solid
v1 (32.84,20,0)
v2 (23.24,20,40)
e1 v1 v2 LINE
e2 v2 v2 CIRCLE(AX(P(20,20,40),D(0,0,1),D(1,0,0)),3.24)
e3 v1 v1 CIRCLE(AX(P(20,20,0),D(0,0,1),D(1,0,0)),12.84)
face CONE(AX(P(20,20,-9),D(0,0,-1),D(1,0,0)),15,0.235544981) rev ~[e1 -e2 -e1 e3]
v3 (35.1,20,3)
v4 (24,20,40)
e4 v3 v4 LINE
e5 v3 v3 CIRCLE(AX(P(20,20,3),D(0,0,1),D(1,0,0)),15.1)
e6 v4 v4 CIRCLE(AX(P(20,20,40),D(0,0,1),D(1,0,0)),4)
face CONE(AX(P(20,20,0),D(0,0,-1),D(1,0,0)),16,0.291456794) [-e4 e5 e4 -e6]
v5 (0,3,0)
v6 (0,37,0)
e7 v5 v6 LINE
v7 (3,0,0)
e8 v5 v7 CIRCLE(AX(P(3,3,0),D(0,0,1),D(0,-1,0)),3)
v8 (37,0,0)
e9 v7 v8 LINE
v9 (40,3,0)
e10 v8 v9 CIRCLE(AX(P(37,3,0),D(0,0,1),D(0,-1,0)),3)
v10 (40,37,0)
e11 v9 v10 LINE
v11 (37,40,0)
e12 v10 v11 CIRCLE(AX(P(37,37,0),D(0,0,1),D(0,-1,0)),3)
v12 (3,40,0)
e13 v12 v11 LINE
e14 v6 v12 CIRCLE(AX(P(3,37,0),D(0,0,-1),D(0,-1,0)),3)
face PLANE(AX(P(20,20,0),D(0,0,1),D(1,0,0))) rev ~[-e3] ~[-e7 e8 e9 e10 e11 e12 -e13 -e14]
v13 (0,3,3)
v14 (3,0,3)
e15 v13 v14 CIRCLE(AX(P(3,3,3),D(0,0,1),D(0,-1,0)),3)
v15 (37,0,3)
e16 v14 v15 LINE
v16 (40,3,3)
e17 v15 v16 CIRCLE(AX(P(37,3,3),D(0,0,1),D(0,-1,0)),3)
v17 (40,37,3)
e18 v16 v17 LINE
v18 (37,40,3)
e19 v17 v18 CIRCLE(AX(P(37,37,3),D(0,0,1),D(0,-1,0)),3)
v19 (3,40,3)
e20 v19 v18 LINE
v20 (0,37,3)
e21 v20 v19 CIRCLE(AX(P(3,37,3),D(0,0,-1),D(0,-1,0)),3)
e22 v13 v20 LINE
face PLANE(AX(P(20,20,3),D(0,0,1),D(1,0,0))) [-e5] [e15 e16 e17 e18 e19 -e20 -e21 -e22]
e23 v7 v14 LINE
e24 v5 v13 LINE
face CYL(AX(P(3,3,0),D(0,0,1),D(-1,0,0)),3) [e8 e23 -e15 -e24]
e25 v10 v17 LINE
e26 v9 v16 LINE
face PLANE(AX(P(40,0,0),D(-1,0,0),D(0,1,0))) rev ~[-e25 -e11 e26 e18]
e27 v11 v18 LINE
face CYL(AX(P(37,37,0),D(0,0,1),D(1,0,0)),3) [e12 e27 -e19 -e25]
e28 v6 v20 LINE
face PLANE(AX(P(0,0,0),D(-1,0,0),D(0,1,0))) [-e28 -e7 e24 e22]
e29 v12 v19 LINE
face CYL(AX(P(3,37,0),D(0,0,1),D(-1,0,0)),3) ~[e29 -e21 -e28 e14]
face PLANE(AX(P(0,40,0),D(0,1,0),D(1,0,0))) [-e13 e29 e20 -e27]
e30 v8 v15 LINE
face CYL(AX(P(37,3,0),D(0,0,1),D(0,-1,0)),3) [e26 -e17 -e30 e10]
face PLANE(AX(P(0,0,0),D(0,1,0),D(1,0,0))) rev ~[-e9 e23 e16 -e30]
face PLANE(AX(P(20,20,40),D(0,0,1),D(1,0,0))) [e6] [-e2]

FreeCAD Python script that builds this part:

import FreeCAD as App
import Part
import Sketcher
from FreeCAD import Vector
Q = App.Units.Quantity


def edges_at(feature, points):
    """Names of the edges that pass closest to the given points."""
    edges = feature.Shape.Edges
    near = lambda p: min(range(len(edges)), key=lambda i: edges[i].distToShape(Part.Vertex(*p))[0])
    return sorted({f"Edge{near(p) + 1}" for p in points})


def add_polygon(sketch, points):
    """Adds a closed chain of lines whose ends are joined by coincident constraints."""
    first, n = sketch.GeometryCount, len(points)
    for a, b in zip(points, points[1:] + points[:1]):
        sketch.addGeometry(Part.LineSegment(App.Vector(*a, 0), App.Vector(*b, 0)), False)
    for i in range(n):
        sketch.addConstraint(Sketcher.Constraint("Coincident", first + i, 2, first + (i + 1) % n, 1))

doc = App.newDocument("Part")
body = doc.addObject("PartDesign::Body", "Body")

# Sketch on XZ plane
sketch1 = body.newObject("Sketcher::SketchObject", "Sketch")
sketch1.AttachmentSupport = (doc.getObject("XZ_Plane"), [""])
sketch1.MapMode = "FlatFace"
add_polygon(sketch1, [(0, -9), (15, -9), (3, 41), (0, 41)])  # lines 0-3
sketch1.addConstraint([
    Sketcher.Constraint("Horizontal", 0),
    Sketcher.Constraint("Horizontal", 2),
    Sketcher.Constraint("Vertical", 3),
    Sketcher.Constraint("PointOnObject", 2, 2, -2),
    Sketcher.Constraint("DistanceX", 0, 1, 0, 2, Q("15 mm")),
    Sketcher.Constraint("DistanceX", 2, 2, 2, 1, Q("3 mm")),
    Sketcher.Constraint("DistanceY", 3, 2, 3, 1, Q("50 mm")),
    Sketcher.Constraint("DistanceY", 0, 2, -1, 1, Q("9 mm")),
])
revolution = body.newObject("PartDesign::Revolution", "Revolution")
revolution.Profile = sketch1
revolution.ReferenceAxis = (sketch1, ["V_Axis"])
revolution.Angle = 360
body2 = doc.addObject("PartDesign::Body", "Body001")

# Sketch on XY plane
sketch2 = body2.newObject("Sketcher::SketchObject", "Sketch001")
sketch2.AttachmentSupport = (doc.getObject("XY_Plane001"), [""])
sketch2.MapMode = "FlatFace"
add_polygon(sketch2, [(-20, 20), (-20, -20), (20, -20), (20, 20)])  # lines 0-3
sketch2.addConstraint([
    Sketcher.Constraint("Vertical", 0),
    Sketcher.Constraint("Horizontal", 1),
    Sketcher.Constraint("Vertical", 2),
    Sketcher.Constraint("Horizontal", 3),
    Sketcher.Constraint("Symmetric", 0, 2, 2, 2, -1, 1),
    Sketcher.Constraint("Equal", 3, 0),
    Sketcher.Constraint("DistanceX", 1, 1, 1, 2, Q("40 mm")),
])
pad1 = body2.newObject("PartDesign::Pad", "Pad")
pad1.Profile = sketch2
pad1.Length = 3
doc.recompute()

fillet = body2.newObject("PartDesign::Fillet", "Fillet")
fillet.Base = (pad1, edges_at(pad1, [
    (-20, -20, 1.5),
    (-20, 20, 1.5),
    (20, -20, 1.5),
    (20, 20, 1.5),
]))
fillet.Radius = 3
body3 = doc.addObject("PartDesign::Body", "Body002")

# Sketch on XZ plane
sketch3 = body3.newObject("Sketcher::SketchObject", "Sketch002")
sketch3.AttachmentSupport = (doc.getObject("XZ_Plane002"), [""])
sketch3.MapMode = "FlatFace"
add_polygon(sketch3, [(0, 0), (16, 0), (4, 40), (0, 40)])  # lines 0-3
sketch3.addConstraint([
    Sketcher.Constraint("Horizontal", 0),
    Sketcher.Constraint("Horizontal", 2),
    Sketcher.Constraint("Vertical", 3),
    Sketcher.Constraint("Coincident", 3, 2, -1, 1),
    Sketcher.Constraint("DistanceX", 0, 1, 0, 2, Q("16 mm")),
    Sketcher.Constraint("DistanceX", 2, 2, 2, 1, Q("4 mm")),
    Sketcher.Constraint("DistanceY", 3, 2, 3, 1, Q("40 mm")),
])
revolution2 = body3.newObject("PartDesign::Revolution", "Revolution001")
revolution2.Profile = sketch3
revolution2.ReferenceAxis = (sketch3, ["V_Axis"])
revolution2.Angle = 360
doc.recompute()

boolean = body3.newObject("PartDesign::Boolean", "Boolean")
boolean.Type = "Fuse"
boolean.addObjects([body2])
doc.recompute()

boolean2 = body3.newObject("PartDesign::Boolean", "Boolean001")
boolean2.Type = "Cut"
boolean2.addObjects([body])
body4 = doc.addObject("PartDesign::Body", "Body003")
doc.recompute()

body3.Placement = App.Placement(Vector(20, 20, 0), App.Rotation(Vector(0, 0, 1), 0))
boolean3 = body4.newObject("PartDesign::Boolean", "Boolean002")
boolean3.Type = "Fuse"
boolean3.addObjects([body3])

doc.recompute()
